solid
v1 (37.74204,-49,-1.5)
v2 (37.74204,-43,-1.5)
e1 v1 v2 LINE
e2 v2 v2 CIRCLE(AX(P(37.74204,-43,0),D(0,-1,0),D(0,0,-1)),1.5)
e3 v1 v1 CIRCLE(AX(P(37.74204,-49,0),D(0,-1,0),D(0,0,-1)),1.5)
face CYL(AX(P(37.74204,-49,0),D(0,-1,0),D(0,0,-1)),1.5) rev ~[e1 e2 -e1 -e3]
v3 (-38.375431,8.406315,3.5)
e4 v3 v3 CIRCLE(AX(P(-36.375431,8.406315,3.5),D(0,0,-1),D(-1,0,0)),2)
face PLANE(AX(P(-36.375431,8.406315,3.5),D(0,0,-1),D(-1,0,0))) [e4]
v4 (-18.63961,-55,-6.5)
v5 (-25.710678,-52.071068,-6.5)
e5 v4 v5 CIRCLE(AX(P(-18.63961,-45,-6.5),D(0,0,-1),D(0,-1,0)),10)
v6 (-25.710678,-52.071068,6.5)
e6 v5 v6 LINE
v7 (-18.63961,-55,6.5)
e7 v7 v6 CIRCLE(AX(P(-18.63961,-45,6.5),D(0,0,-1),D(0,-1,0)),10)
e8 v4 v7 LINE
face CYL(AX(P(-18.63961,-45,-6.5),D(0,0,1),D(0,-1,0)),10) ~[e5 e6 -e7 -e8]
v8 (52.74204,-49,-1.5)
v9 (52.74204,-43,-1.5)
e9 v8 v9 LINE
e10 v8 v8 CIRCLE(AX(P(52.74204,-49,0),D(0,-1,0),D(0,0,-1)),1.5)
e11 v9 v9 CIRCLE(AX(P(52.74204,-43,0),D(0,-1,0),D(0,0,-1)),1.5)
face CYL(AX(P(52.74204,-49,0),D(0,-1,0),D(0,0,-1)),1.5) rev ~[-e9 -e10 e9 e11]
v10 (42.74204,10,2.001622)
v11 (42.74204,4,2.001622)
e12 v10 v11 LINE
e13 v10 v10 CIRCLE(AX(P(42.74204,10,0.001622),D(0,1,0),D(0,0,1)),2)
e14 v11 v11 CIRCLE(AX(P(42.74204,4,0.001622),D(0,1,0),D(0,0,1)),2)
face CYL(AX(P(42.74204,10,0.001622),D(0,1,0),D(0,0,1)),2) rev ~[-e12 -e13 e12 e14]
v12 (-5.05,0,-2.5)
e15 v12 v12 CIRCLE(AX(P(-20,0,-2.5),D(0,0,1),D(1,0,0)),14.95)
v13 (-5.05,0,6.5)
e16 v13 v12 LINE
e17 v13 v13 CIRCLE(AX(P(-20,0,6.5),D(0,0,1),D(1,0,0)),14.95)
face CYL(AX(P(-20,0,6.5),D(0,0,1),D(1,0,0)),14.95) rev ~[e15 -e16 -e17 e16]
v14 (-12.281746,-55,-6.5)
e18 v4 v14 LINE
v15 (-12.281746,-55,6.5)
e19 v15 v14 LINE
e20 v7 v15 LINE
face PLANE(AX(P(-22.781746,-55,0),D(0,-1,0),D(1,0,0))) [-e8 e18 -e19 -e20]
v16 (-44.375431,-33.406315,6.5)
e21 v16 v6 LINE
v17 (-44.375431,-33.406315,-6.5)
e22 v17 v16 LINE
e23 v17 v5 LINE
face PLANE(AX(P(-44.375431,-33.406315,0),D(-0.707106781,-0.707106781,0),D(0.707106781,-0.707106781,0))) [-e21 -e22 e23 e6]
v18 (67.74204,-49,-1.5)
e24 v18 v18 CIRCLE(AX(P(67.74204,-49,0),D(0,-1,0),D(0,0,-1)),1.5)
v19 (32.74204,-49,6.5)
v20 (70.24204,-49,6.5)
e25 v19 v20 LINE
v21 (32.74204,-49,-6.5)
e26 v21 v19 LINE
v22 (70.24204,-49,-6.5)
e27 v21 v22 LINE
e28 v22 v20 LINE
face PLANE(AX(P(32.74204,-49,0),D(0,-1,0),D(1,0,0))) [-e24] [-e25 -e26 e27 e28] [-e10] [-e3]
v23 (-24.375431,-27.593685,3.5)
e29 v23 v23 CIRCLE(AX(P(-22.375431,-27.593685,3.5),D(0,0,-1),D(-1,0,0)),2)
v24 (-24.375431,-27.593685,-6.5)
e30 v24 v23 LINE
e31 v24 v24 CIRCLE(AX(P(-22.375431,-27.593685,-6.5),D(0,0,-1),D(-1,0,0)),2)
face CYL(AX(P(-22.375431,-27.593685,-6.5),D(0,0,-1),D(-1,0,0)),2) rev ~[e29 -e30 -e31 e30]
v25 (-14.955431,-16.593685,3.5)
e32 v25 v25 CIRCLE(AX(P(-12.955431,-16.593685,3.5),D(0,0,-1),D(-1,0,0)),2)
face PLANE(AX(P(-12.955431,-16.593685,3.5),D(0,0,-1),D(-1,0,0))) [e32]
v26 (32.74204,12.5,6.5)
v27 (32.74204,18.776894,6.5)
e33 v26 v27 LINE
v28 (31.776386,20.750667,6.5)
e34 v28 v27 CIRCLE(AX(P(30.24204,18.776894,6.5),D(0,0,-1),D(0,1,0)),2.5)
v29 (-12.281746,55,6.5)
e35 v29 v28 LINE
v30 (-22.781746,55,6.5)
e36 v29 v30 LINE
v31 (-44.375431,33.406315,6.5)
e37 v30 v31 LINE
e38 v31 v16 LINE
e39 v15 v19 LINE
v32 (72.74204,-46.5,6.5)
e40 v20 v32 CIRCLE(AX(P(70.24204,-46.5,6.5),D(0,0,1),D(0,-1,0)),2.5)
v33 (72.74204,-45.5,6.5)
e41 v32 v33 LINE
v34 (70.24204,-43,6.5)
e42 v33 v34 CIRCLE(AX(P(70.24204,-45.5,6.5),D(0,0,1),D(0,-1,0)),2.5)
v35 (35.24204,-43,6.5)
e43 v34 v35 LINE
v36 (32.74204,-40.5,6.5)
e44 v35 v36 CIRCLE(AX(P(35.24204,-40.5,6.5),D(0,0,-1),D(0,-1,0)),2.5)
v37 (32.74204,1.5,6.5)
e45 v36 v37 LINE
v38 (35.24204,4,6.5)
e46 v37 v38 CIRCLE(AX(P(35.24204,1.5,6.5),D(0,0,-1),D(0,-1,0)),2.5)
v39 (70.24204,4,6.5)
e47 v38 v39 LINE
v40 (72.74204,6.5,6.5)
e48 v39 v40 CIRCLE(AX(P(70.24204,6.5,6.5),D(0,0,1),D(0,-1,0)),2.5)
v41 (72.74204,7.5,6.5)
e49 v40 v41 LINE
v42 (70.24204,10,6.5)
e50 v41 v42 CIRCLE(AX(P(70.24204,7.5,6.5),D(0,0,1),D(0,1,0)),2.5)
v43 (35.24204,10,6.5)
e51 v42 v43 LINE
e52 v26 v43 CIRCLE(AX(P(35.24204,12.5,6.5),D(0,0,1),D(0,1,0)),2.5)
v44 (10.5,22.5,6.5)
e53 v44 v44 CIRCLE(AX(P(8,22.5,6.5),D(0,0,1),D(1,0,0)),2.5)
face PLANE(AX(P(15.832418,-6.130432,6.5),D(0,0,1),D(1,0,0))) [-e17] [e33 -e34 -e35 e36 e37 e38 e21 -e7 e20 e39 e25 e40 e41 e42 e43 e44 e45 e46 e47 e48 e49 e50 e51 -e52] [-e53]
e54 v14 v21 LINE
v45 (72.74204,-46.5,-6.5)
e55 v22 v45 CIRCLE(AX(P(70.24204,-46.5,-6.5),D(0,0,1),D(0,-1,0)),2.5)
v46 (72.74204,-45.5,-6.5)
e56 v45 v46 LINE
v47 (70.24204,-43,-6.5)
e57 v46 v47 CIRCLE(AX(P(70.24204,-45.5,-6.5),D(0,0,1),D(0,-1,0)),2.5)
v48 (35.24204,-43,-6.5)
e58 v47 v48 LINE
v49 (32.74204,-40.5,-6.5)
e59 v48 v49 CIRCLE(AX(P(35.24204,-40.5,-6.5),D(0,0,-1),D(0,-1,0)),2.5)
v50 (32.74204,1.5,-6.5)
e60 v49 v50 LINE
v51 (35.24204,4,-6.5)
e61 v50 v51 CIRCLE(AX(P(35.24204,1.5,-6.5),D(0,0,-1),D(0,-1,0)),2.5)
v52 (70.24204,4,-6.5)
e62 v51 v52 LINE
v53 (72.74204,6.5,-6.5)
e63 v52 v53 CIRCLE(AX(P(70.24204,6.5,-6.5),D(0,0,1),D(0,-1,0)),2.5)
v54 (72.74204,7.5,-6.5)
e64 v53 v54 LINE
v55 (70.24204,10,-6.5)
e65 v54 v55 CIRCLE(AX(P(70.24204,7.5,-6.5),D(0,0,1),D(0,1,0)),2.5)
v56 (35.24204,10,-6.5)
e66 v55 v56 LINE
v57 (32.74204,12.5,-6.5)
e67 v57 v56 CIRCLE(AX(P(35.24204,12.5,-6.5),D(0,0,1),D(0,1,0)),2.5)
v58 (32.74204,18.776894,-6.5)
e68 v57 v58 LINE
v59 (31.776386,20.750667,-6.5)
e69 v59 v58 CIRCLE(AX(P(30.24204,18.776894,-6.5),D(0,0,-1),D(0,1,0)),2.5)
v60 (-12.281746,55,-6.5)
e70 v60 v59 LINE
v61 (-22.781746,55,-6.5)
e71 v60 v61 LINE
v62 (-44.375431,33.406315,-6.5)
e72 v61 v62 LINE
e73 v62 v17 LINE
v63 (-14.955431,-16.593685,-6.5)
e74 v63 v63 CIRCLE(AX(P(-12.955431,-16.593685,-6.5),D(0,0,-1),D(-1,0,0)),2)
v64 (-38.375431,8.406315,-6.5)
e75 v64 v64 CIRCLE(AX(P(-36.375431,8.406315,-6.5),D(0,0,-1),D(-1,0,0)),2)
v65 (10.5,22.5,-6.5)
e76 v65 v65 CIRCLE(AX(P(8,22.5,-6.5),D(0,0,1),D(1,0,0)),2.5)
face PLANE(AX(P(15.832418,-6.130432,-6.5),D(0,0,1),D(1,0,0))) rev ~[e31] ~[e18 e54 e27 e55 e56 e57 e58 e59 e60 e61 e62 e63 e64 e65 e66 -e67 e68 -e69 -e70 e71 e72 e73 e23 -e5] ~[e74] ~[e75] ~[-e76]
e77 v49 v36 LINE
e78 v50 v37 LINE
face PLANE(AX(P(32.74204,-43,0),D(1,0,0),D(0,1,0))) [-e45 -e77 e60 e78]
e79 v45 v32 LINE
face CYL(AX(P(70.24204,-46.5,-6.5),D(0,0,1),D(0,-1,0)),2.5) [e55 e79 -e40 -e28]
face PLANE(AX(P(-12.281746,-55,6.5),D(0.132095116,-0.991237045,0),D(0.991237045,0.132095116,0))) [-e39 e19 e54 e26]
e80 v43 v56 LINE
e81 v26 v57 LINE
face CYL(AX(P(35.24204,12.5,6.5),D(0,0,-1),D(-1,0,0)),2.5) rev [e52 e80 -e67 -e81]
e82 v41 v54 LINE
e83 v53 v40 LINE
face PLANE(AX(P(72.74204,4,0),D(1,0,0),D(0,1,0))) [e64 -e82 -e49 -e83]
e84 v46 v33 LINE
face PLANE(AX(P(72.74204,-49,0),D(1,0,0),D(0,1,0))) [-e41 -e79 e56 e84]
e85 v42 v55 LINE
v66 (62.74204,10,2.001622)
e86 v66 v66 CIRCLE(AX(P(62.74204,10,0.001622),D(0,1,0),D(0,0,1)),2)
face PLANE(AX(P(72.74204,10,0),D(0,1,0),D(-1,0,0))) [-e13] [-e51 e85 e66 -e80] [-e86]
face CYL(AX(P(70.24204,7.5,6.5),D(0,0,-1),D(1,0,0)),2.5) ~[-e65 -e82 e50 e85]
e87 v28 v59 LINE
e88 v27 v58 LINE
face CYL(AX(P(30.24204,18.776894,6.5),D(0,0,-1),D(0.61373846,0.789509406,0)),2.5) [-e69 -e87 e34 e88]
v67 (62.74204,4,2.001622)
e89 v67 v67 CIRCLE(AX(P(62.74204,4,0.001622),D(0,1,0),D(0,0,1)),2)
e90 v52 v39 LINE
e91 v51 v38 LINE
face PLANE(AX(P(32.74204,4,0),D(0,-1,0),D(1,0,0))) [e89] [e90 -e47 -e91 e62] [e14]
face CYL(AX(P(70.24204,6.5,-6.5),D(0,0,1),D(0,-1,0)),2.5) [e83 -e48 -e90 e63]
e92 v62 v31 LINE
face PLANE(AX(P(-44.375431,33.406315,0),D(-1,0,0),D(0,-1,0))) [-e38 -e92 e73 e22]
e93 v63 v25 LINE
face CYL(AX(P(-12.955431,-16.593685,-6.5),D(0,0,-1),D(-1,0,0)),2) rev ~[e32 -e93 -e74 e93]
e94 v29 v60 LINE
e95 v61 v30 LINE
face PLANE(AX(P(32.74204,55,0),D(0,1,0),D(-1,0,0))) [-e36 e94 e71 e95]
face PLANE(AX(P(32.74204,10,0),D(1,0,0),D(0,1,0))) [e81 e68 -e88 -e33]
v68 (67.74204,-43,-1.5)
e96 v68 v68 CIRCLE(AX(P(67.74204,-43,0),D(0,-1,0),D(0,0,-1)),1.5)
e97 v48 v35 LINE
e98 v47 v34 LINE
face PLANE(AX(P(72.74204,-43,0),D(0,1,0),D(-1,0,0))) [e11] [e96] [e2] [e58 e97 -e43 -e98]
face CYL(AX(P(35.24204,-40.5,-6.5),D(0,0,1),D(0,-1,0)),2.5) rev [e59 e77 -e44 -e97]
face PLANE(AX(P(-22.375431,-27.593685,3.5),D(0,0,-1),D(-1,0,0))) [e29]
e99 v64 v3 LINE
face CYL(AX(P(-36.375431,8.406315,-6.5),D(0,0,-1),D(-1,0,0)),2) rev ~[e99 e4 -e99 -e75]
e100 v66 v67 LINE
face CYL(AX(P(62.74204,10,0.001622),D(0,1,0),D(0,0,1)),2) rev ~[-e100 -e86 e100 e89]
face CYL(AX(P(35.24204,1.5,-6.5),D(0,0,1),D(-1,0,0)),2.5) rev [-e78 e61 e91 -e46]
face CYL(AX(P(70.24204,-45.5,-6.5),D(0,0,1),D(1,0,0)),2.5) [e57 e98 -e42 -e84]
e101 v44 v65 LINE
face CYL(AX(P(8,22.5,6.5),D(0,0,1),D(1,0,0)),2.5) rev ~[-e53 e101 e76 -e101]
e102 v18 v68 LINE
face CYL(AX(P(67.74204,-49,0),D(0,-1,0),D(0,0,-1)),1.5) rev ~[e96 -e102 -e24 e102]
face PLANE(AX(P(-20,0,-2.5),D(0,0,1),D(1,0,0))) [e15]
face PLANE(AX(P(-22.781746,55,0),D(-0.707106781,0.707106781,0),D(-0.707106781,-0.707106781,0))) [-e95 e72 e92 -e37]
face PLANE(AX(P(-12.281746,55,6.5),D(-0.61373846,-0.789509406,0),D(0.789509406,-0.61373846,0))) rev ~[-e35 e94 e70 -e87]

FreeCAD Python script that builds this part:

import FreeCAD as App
import Part
import Sketcher

V = App.Vector
Q = App.Units.Quantity


def edges_at(feature, points):
    """Names of the edges that pass closest to the given points."""
    edges = feature.Shape.Edges
    near = lambda p: min(range(len(edges)), key=lambda i: edges[i].distToShape(Part.Vertex(*p))[0])
    return sorted({f"Edge{near(p) + 1}" for p in points})

doc = App.newDocument("Part")
body = doc.addObject("PartDesign::Body", "Body")

sketch1 = body.newObject("Sketcher::SketchObject", "Sketch")
sketch1.AttachmentSupport = (doc.getObject("XY_Plane"), [""])
sketch1.MapMode = "FlatFace"
sketch1.addGeometry(Part.LineSegment(V(33, 55, 0), V(-23, 55, 0)), False)
sketch1.addGeometry(Part.LineSegment(V(-23, 55, 0), V(-44, 33, 0)), False)
sketch1.addGeometry(Part.LineSegment(V(-44, 33, 0), V(-44, -33, 0)), False)
sketch1.addGeometry(Part.LineSegment(V(-44, -33, 0), V(-23, -55, 0)), False)
sketch1.addGeometry(Part.LineSegment(V(-23, -55, 0), V(33, -55, 0)), False)
sketch1.addGeometry(Part.LineSegment(V(33, -55, 0), V(33, -49, 0)), False)
sketch1.addGeometry(Part.LineSegment(V(33, -49, 0), V(73, -49, 0)), False)
sketch1.addGeometry(Part.LineSegment(V(73, -49, 0), V(73, -43, 0)), False)
sketch1.addGeometry(Part.LineSegment(V(73, -43, 0), V(33, -43, 0)), False)
sketch1.addGeometry(Part.LineSegment(V(33, -43, 0), V(33, 4, 0)), False)
sketch1.addGeometry(Part.LineSegment(V(33, 4, 0), V(73, 4, 0)), False)
sketch1.addGeometry(Part.LineSegment(V(73, 4, 0), V(73, 10, 0)), False)
sketch1.addGeometry(Part.LineSegment(V(73, 10, 0), V(33, 10, 0)), False)
sketch1.addGeometry(Part.LineSegment(V(33, 10, 0), V(33, 55, 0)), False)
sketch1.addConstraint(Sketcher.Constraint("Coincident", 0, 2, 1, 1))
sketch1.addConstraint(Sketcher.Constraint("Coincident", 1, 2, 2, 1))
sketch1.addConstraint(Sketcher.Constraint("Coincident", 2, 2, 3, 1))
sketch1.addConstraint(Sketcher.Constraint("Coincident", 3, 2, 4, 1))
sketch1.addConstraint(Sketcher.Constraint("Coincident", 4, 2, 5, 1))
sketch1.addConstraint(Sketcher.Constraint("Coincident", 5, 2, 6, 1))
sketch1.addConstraint(Sketcher.Constraint("Coincident", 6, 2, 7, 1))
sketch1.addConstraint(Sketcher.Constraint("Coincident", 7, 2, 8, 1))
sketch1.addConstraint(Sketcher.Constraint("Coincident", 8, 2, 9, 1))
sketch1.addConstraint(Sketcher.Constraint("Coincident", 9, 2, 10, 1))
sketch1.addConstraint(Sketcher.Constraint("Coincident", 10, 2, 11, 1))
sketch1.addConstraint(Sketcher.Constraint("Coincident", 11, 2, 12, 1))
sketch1.addConstraint(Sketcher.Constraint("Coincident", 12, 2, 13, 1))
sketch1.addConstraint(Sketcher.Constraint("Coincident", 13, 2, 0, 1))
sketch1.addConstraint(Sketcher.Constraint("Horizontal", 0))
sketch1.addConstraint(Sketcher.Constraint("Vertical", 2))
sketch1.addConstraint(Sketcher.Constraint("Horizontal", 4))
sketch1.addConstraint(Sketcher.Constraint("Vertical", 5))
sketch1.addConstraint(Sketcher.Constraint("Horizontal", 6))
sketch1.addConstraint(Sketcher.Constraint("Vertical", 7))
sketch1.addConstraint(Sketcher.Constraint("Horizontal", 8))
sketch1.addConstraint(Sketcher.Constraint("Vertical", 9))
sketch1.addConstraint(Sketcher.Constraint("Horizontal", 10))
sketch1.addConstraint(Sketcher.Constraint("Vertical", 11))
sketch1.addConstraint(Sketcher.Constraint("Horizontal", 12))
sketch1.addConstraint(Sketcher.Constraint("Vertical", 13))
sketch1.addConstraint(Sketcher.Constraint("Symmetric", 0, 2, 3, 2, -1))
sketch1.addConstraint(Sketcher.Constraint("Perpendicular", 1, 3))
sketch1.addConstraint(Sketcher.Constraint("Vertical", 5, 2, 8, 2))
sketch1.addConstraint(Sketcher.Constraint("Vertical", 7, 2, 10, 2))
sketch1.addConstraint(Sketcher.Constraint("Vertical", 9, 2, 12, 2))
sketch1.addConstraint(Sketcher.Constraint("Equal", 5, 7))
sketch1.addConstraint(Sketcher.Constraint("Equal", 7, 11))
sketch1.addConstraint(Sketcher.Constraint("Equal", 1, 3))
sketch1.addConstraint(Sketcher.Constraint("DistanceX", 6, 1, 6, 2, Q("40 mm")))
sketch1.addConstraint(Sketcher.Constraint("DistanceY", 5, 1, 5, 2, Q("6 mm")))
sketch1.addConstraint(Sketcher.Constraint("DistanceY", 9, 1, 9, 2, Q("47 mm")))
sketch1.addConstraint(Sketcher.Constraint("DistanceY", 13, 1, 13, 2, Q("45 mm")))
sketch1.addConstraint(Sketcher.Constraint("DistanceY", 2, 2, 2, 1, Q("66.81263 mm")))
sketch1.addConstraint(Sketcher.Constraint("DistanceX", 0, 2, 0, 1, Q("55.523786 mm")))
sketch1.addConstraint(Sketcher.Constraint("DistanceX", 1, 2, -1, 1, Q("44.375431 mm")))
pad1 = body.newObject("PartDesign::Pad", "Pad")
pad1.Profile = sketch1
pad1.Length = 13
pad1.Midplane = True

sketch2 = body.newObject("Sketcher::SketchObject", "Sketch001")
sketch2.AttachmentSupport = (doc.getObject("XY_Plane"), [""])
sketch2.MapMode = "FlatFace"
sketch2.AttachmentOffset = App.Placement(V(0, 0, 6.5), App.Rotation())
sketch2.addGeometry(Part.Circle(V(-20, 0, 0), V(0, 0, 1), 15), False)
sketch2.addConstraint(Sketcher.Constraint("PointOnObject", 0, 3, -1))
sketch2.addConstraint(Sketcher.Constraint("Diameter", 0, Q("29.9 mm")))
sketch2.addConstraint(Sketcher.Constraint("DistanceX", 0, 3, -1, 1, Q("20 mm")))
pocket1 = body.newObject("PartDesign::Pocket", "Pocket")
pocket1.Profile = sketch2
pocket1.Length = 9

sketch3 = body.newObject("Sketcher::SketchObject", "Sketch002")
sketch3.AttachmentSupport = (doc.getObject("XY_Plane"), [""])
sketch3.MapMode = "FlatFace"
sketch3.AttachmentOffset = App.Placement(V(0, 0, 6.5), App.Rotation())
sketch3.addGeometry(Part.Circle(V(8, 22.5, 0), V(0, 0, 1), 2.5), False)
sketch3.addGeometry(Part.LineSegment(V(32.7, -49, 0), V(-12.3, -55, 0)), False)
sketch3.addGeometry(Part.LineSegment(V(-12.3, -55, 0), V(32.7, -55, 0)), False)
sketch3.addGeometry(Part.LineSegment(V(32.7, -55, 0), V(32.7, -49, 0)), False)
sketch3.addGeometry(Part.LineSegment(V(32.7, 55, 0), V(-12.3, 55, 0)), False)
sketch3.addGeometry(Part.LineSegment(V(-12.3, 55, 0), V(32.7, 20, 0)), False)
sketch3.addGeometry(Part.LineSegment(V(32.7, 20, 0), V(32.7, 55, 0)), False)
sketch3.addConstraint(Sketcher.Constraint("Coincident", 1, 2, 2, 1))
sketch3.addConstraint(Sketcher.Constraint("Coincident", 2, 2, 3, 1))
sketch3.addConstraint(Sketcher.Constraint("Coincident", 3, 2, 1, 1))
sketch3.addConstraint(Sketcher.Constraint("Coincident", 4, 2, 5, 1))
sketch3.addConstraint(Sketcher.Constraint("Coincident", 5, 2, 6, 1))
sketch3.addConstraint(Sketcher.Constraint("Coincident", 6, 2, 4, 1))
sketch3.addConstraint(Sketcher.Constraint("Horizontal", 2))
sketch3.addConstraint(Sketcher.Constraint("Vertical", 3))
sketch3.addConstraint(Sketcher.Constraint("Horizontal", 4))
sketch3.addConstraint(Sketcher.Constraint("Vertical", 6))
sketch3.addConstraint(Sketcher.Constraint("Symmetric", 1, 2, 4, 2, -1))
sketch3.addConstraint(Sketcher.Constraint("Vertical", 3, 2, 5, 2))
sketch3.addConstraint(Sketcher.Constraint("Diameter", 0, Q("5 mm")))
sketch3.addConstraint(Sketcher.Constraint("DistanceY", 3, 1, 3, 2, Q("6 mm")))
sketch3.addConstraint(Sketcher.Constraint("DistanceY", 6, 1, 6, 2, Q("35 mm")))
sketch3.addConstraint(Sketcher.Constraint("DistanceX", -1, 1, 0, 3, Q("8 mm")))
sketch3.addConstraint(Sketcher.Constraint("DistanceY", 1, 2, -1, 1, Q("55 mm")))
sketch3.addConstraint(Sketcher.Constraint("DistanceY", -1, 1, 0, 3, Q("22.5 mm")))
sketch3.addConstraint(Sketcher.Constraint("Distance", 5, Q("57.027549 mm")))
sketch3.addConstraint(Sketcher.Constraint("DistanceX", -1, 1, 2, 2, Q("32.74204 mm")))
pocket2 = body.newObject("PartDesign::Pocket", "Pocket001")
pocket2.Profile = sketch3
pocket2.Length = 13
doc.recompute()

fillet = body.newObject("PartDesign::Fillet", "Fillet")
fillet.Base = (pocket2, edges_at(pocket2, [(-22.782, -55, 0)]))
fillet.Radius = 10

sketch4 = body.newObject("Sketcher::SketchObject", "Sketch003")
sketch4.AttachmentSupport = (doc.getObject("XY_Plane"), [""])
sketch4.MapMode = "FlatFace"
sketch4.AttachmentOffset = App.Placement(V(0, 0, -6.5), App.Rotation())
sketch4.addGeometry(Part.Circle(V(-36.4, 8.4, 0), V(0, 0, 1), 2), False)
sketch4.addGeometry(Part.Circle(V(-13, -16.6, 0), V(0, 0, 1), 2), False)
sketch4.addGeometry(Part.Circle(V(-22.4, -27.6, 0), V(0, 0, 1), 2), False)
sketch4.addConstraint(Sketcher.Constraint("Equal", 0, 1))
sketch4.addConstraint(Sketcher.Constraint("Equal", 1, 2))
sketch4.addConstraint(Sketcher.Constraint("Diameter", 0, Q("4 mm")))
sketch4.addConstraint(Sketcher.Constraint("DistanceY", 1, 3, 0, 3, Q("25 mm")))
sketch4.addConstraint(Sketcher.Constraint("DistanceY", 2, 3, 1, 3, Q("11 mm")))
sketch4.addConstraint(Sketcher.Constraint("DistanceX", 0, 3, 2, 3, Q("14 mm")))
sketch4.addConstraint(Sketcher.Constraint("DistanceX", 0, 3, 1, 3, Q("23.42 mm")))
sketch4.addConstraint(Sketcher.Constraint("DistanceX", 0, 3, -1, 1, Q("36.375431 mm")))
sketch4.addConstraint(Sketcher.Constraint("DistanceY", -1, 1, 0, 3, Q("8.406315 mm")))
pocket3 = body.newObject("PartDesign::Pocket", "Pocket002")
pocket3.Profile = sketch4
pocket3.Length = 10
pocket3.Reversed = True

sketch5 = body.newObject("Sketcher::SketchObject", "Sketch004")
sketch5.AttachmentSupport = (doc.getObject("XZ_Plane"), [""])
sketch5.MapMode = "FlatFace"
sketch5.AttachmentOffset = App.Placement(V(0, 0, -10), App.Rotation())
sketch5.addGeometry(Part.Circle(V(42.7, 0, 0), V(0, 0, 1), 2), False)
sketch5.addGeometry(Part.Circle(V(62.7, 0, 0), V(0, 0, 1), 2), False)
sketch5.addConstraint(Sketcher.Constraint("Equal", 0, 1))
sketch5.addConstraint(Sketcher.Constraint("Horizontal", 0, 3, 1, 3))
sketch5.addConstraint(Sketcher.Constraint("Diameter", 0, Q("4 mm")))
sketch5.addConstraint(Sketcher.Constraint("DistanceX", 0, 3, 1, 3, Q("20 mm")))
sketch5.addConstraint(Sketcher.Constraint("DistanceX", -1, 1, 0, 3, Q("42.74204 mm")))
sketch5.addConstraint(Sketcher.Constraint("DistanceY", -1, 1, 0, 3, Q("0.001622 mm")))
pocket4 = body.newObject("PartDesign::Pocket", "Pocket003")
pocket4.Profile = sketch5
pocket4.Length = 10
pocket4.Reversed = True

sketch6 = body.newObject("Sketcher::SketchObject", "Sketch005")
sketch6.AttachmentSupport = (doc.getObject("XZ_Plane"), [""])
sketch6.MapMode = "FlatFace"
sketch6.AttachmentOffset = App.Placement(V(0, 0, 49), App.Rotation())
sketch6.addGeometry(Part.Circle(V(37.7, 0, 0), V(0, 0, 1), 1.5), False)
sketch6.addGeometry(Part.Circle(V(52.7, 0, 0), V(0, 0, 1), 1.5), False)
sketch6.addGeometry(Part.Circle(V(67.7, 0, 0), V(0, 0, 1), 1.5), False)
sketch6.addConstraint(Sketcher.Constraint("Equal", 0, 1))
sketch6.addConstraint(Sketcher.Constraint("Equal", 1, 2))
sketch6.addConstraint(Sketcher.Constraint("PointOnObject", 0, 3, -1))
sketch6.addConstraint(Sketcher.Constraint("PointOnObject", 1, 3, -1))
sketch6.addConstraint(Sketcher.Constraint("PointOnObject", 2, 3, -1))
sketch6.addConstraint(Sketcher.Constraint("Diameter", 0, Q("3 mm")))
sketch6.addConstraint(Sketcher.Constraint("DistanceX", 0, 3, 1, 3, Q("15 mm")))
sketch6.addConstraint(Sketcher.Constraint("DistanceX", 1, 3, 2, 3, Q("15 mm")))
sketch6.addConstraint(Sketcher.Constraint("DistanceX", -1, 1, 0, 3, Q("37.74204 mm")))
pocket5 = body.newObject("PartDesign::Pocket", "Pocket004")
pocket5.Profile = sketch6
pocket5.Length = 10
doc.recompute()

fillet2 = body.newObject("PartDesign::Fillet", "Fillet001")
fillet2.Base = (pocket5, edges_at(pocket5, [
    (32.742, 10, 0),
    (72.742, 10, 0),
    (72.742, 4, 0),
    (32.742, 4, 0),
    (32.742, -43, 0),
    (72.742, -43, 0),
    (72.742, -49, 0),
    (32.742, 20, 0),
]))
fillet2.Radius = 2.5

doc.recompute()
